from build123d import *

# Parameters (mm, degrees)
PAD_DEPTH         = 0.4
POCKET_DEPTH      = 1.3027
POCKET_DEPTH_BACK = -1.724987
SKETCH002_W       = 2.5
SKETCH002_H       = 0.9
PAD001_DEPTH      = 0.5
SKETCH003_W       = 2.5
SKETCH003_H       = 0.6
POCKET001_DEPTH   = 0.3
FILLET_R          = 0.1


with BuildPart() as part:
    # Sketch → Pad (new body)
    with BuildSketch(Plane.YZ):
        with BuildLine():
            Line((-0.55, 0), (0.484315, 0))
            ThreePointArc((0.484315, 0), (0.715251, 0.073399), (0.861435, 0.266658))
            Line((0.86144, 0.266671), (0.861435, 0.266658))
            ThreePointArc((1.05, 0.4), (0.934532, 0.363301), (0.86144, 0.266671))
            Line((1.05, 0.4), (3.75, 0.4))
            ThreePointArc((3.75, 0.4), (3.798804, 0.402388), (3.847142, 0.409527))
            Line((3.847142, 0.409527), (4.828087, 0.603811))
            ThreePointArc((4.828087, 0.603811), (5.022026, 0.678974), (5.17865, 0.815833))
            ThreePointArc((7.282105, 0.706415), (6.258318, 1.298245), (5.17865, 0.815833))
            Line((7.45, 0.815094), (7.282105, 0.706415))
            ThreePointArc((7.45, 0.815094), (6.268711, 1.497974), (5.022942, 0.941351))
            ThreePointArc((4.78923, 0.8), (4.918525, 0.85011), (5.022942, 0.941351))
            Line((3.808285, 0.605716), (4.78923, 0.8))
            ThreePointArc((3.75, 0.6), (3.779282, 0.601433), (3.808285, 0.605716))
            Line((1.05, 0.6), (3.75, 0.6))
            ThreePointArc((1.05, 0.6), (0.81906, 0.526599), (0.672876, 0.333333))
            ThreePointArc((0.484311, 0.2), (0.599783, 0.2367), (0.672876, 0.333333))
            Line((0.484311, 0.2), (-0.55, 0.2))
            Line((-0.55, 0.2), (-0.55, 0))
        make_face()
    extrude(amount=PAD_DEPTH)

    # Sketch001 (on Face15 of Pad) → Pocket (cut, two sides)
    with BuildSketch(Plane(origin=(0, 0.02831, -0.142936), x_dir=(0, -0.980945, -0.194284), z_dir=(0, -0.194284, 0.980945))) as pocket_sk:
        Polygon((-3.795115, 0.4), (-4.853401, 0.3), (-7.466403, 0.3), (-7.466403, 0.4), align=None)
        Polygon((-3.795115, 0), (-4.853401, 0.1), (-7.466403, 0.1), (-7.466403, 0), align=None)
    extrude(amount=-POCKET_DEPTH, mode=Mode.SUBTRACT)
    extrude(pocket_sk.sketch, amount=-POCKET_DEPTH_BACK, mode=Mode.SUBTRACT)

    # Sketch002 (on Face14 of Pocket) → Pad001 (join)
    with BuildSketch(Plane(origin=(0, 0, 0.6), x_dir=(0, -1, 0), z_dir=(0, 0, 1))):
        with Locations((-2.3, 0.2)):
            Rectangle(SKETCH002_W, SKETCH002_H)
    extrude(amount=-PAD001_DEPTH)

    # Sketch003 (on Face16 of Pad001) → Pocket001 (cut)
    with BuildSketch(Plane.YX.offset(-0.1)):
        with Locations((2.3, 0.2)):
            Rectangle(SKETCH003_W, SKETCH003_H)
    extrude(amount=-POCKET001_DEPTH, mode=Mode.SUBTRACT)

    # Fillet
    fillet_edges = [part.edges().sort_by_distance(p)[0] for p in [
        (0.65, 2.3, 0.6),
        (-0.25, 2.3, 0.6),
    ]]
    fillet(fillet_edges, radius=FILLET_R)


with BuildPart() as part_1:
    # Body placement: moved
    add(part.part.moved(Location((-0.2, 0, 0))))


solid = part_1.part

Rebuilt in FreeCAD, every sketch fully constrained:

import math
import FreeCAD as App
import Part
import Sketcher

V = App.Vector
Q = App.Units.Quantity


def edges_at(feature, points):
    """Names of the edges that pass closest to the given points."""
    edges = feature.Shape.Edges
    near = lambda p: min(range(len(edges)), key=lambda i: edges[i].distToShape(Part.Vertex(*p))[0])
    return sorted({f"Edge{near(p) + 1}" for p in points})


def add_polygon(sketch, points):
    """Adds a closed chain of lines whose ends are joined by coincident constraints."""
    first, n = sketch.GeometryCount, len(points)
    for a, b in zip(points, points[1:] + points[:1]):
        sketch.addGeometry(Part.LineSegment(App.Vector(*a, 0), App.Vector(*b, 0)), False)
    for i in range(n):
        sketch.addConstraint(Sketcher.Constraint("Coincident", first + i, 2, first + (i + 1) % n, 1))

doc = App.newDocument("Part")
params = doc.addObject("Spreadsheet::Sheet", "Params")
for row, (alias, value) in enumerate([
    ("sketch1_radius", "0.400001 mm"),
    ("sketch1_radius2", "0.199998 mm"),
    ("sketch1_radius3", "0.6 mm"),
    ("sketch1_radius4", "1.300001 mm"),
    ("sketch1_radius5", "1.500001 mm"),
    ("pad1_length", "0.4 mm"),
    ("sketch2_height", "0.1 mm"),
    ("sketch3_width", "0.9 mm"),
    ("sketch3_height", "2.5 mm"),
    ("pad2_length", "0.5 mm"),
    ("sketch4_width", "0.6 mm"),
    ("sketch4_height", "2.5 mm"),
    ("pocket2_length", "0.3 mm"),
    ("fillet_radius", "0.1 mm"),
], start=1):
    params.set(f"A{row}", alias)
    params.set(f"B{row}", "=" + value)
    params.setAlias(f"B{row}", alias)

body = doc.addObject("PartDesign::Body", "Body")

sketch1 = doc.addObject("Sketcher::SketchObject", "Sketch")
body.addObject(sketch1)
sketch1.AttachmentSupport = (doc.YZ_Plane, [""])
sketch1.MapMode = "FlatFace"
sketch1.addGeometry(Part.LineSegment(V(-0.55, 0, 0), V(0.484315, 0, 0)), False)
sketch1.addGeometry(Part.ArcOfCircle(Part.Circle(V(0.484314, 0.400001, 0), V(0, 0, 1), 0.400001), math.radians(-89.999867), math.radians(-19.472591)), False)
sketch1.addGeometry(Part.LineSegment(V(0.861435, 0.266658, 0), V(0.86144, 0.266671, 0)), False)
sketch1.addGeometry(Part.ArcOfCircle(Part.Circle(V(1.049999, 0.200002, 0), V(0, 0, 1), 0.199998), math.radians(89.999765), math.radians(160.527777)), False)
sketch1.addGeometry(Part.LineSegment(V(1.05, 0.4, 0), V(3.75, 0.4, 0)), False)
sketch1.addGeometry(Part.ArcOfCircle(Part.Circle(V(3.749989, 0.900132, 0), V(0, 0, 1), 0.500132), math.radians(-89.998711), math.radians(-78.798784)), False)
sketch1.addGeometry(Part.LineSegment(V(3.847142, 0.409527, 0), V(4.828087, 0.603811, 0)), False)
sketch1.addGeometry(Part.ArcOfCircle(Part.Circle(V(4.711517, 1.192378, 0), V(0, 0, 1), 0.6), math.radians(-78.797091), math.radians(-38.871453)), False)
sketch1.addGeometry(Part.ArcOfCircle(Part.Circle(V(6.190785, 0, 0), V(0, 0, 1), 1.300001), math.radians(32.91513), math.radians(141.129388)), False)
sketch1.addGeometry(Part.LineSegment(V(7.282105, 0.706415, 0), V(7.45, 0.815094, 0)), False)
sketch1.addGeometry(Part.ArcOfCircle(Part.Circle(V(6.190785, -0.000001, 0), V(0, 0, 1), 1.500001), math.radians(32.915153), math.radians(141.129094)), False)
sketch1.addGeometry(Part.ArcOfCircle(Part.Circle(V(4.711515, 1.192383, 0), V(0, 0, 1), 0.400005), math.radians(-78.796996), math.radians(-38.871195)), False)
sketch1.addGeometry(Part.LineSegment(V(4.78923, 0.8, 0), V(3.808285, 0.605716, 0)), False)
sketch1.addGeometry(Part.ArcOfCircle(Part.Circle(V(3.749988, 0.900145, 0), V(0, 0, 1), 0.300145), math.radians(-89.997628), math.radians(-78.800219)), False)
sketch1.addGeometry(Part.LineSegment(V(3.75, 0.6, 0), V(1.05, 0.6, 0)), False)
sketch1.addGeometry(Part.ArcOfCircle(Part.Circle(V(1.049999, 0.2, 0), V(0, 0, 1), 0.4), math.radians(89.999924), math.radians(160.528868)), False)
sketch1.addGeometry(Part.ArcOfCircle(Part.Circle(V(0.484314, 0.400001, 0), V(0, 0, 1), 0.200001), math.radians(-90.000742), math.radians(-19.471528)), False)
sketch1.addGeometry(Part.LineSegment(V(0.484311, 0.2, 0), V(-0.55, 0.2, 0)), False)
sketch1.addGeometry(Part.LineSegment(V(-0.55, 0.2, 0), V(-0.55, 0, 0)), False)
sketch1.addConstraint(Sketcher.Constraint("Coincident", 0, 2, 1, 1))
sketch1.addConstraint(Sketcher.Constraint("Coincident", 1, 2, 2, 1))
sketch1.addConstraint(Sketcher.Constraint("Coincident", 2, 2, 3, 2))
sketch1.addConstraint(Sketcher.Constraint("Coincident", 3, 1, 4, 1))
sketch1.addConstraint(Sketcher.Constraint("Coincident", 4, 2, 5, 1))
sketch1.addConstraint(Sketcher.Constraint("Coincident", 5, 2, 6, 1))
sketch1.addConstraint(Sketcher.Constraint("Coincident", 6, 2, 7, 1))
sketch1.addConstraint(Sketcher.Constraint("Coincident", 7, 2, 8, 2))
sketch1.addConstraint(Sketcher.Constraint("Coincident", 8, 1, 9, 1))
sketch1.addConstraint(Sketcher.Constraint("Coincident", 9, 2, 10, 1))
sketch1.addConstraint(Sketcher.Constraint("Coincident", 10, 2, 11, 2))
sketch1.addConstraint(Sketcher.Constraint("Coincident", 11, 1, 12, 1))
sketch1.addConstraint(Sketcher.Constraint("Coincident", 12, 2, 13, 2))
sketch1.addConstraint(Sketcher.Constraint("Coincident", 13, 1, 14, 1))
sketch1.addConstraint(Sketcher.Constraint("Coincident", 14, 2, 15, 1))
sketch1.addConstraint(Sketcher.Constraint("Coincident", 15, 2, 16, 2))
sketch1.addConstraint(Sketcher.Constraint("Coincident", 16, 1, 17, 1))
sketch1.addConstraint(Sketcher.Constraint("Coincident", 17, 2, 18, 1))
sketch1.addConstraint(Sketcher.Constraint("Coincident", 18, 2, 0, 1))
sketch1.addConstraint(Sketcher.Constraint("Horizontal", 0))
sketch1.addConstraint(Sketcher.Constraint("Horizontal", 4))
sketch1.addConstraint(Sketcher.Constraint("Horizontal", 14))
sketch1.addConstraint(Sketcher.Constraint("Horizontal", 17))
sketch1.addConstraint(Sketcher.Constraint("Vertical", 18))
sketch1.addConstraint(Sketcher.Constraint("Coincident", 10, 3, 8, 3))
sketch1.addConstraint(Sketcher.Constraint("Coincident", 11, 3, 7, 3))
sketch1.addConstraint(Sketcher.Constraint("Coincident", 15, 3, 3, 3))
sketch1.addConstraint(Sketcher.Constraint("Coincident", 16, 3, 1, 3))
sketch1.addConstraint(Sketcher.Constraint("PointOnObject", 8, 3, -1))
sketch1.addConstraint(Sketcher.Constraint("PointOnObject", 0, 2, -1))
sketch1.addConstraint(Sketcher.Constraint("Radius", 1, Q("0.400001 mm")))
sketch1.addConstraint(Sketcher.Constraint("Radius", 3, Q("0.199998 mm")))
sketch1.addConstraint(Sketcher.Constraint("Radius", 7, Q("0.6 mm")))
sketch1.addConstraint(Sketcher.Constraint("Radius", 8, Q("1.300001 mm")))
sketch1.addConstraint(Sketcher.Constraint("Radius", 10, Q("1.500001 mm")))
sketch1.addConstraint(Sketcher.Constraint("Radius", 15, Q("0.4 mm")))
sketch1.addConstraint(Sketcher.Constraint("Radius", 16, Q("0.200001 mm")))
sketch1.addConstraint(Sketcher.Constraint("Distance", 6, Q("1 mm")))
sketch1.addConstraint(Sketcher.Constraint("Distance", 12, Q("1 mm")))
sketch1.addConstraint(Sketcher.Constraint("DistanceX", 4, 1, 4, 2, Q("2.7 mm")))
sketch1.addConstraint(Sketcher.Constraint("DistanceX", 14, 2, 14, 1, Q("2.7 mm")))
sketch1.addConstraint(Sketcher.Constraint("DistanceY", -1, 1, 3, 3, Q("0.200002 mm")))
sketch1.addConstraint(Sketcher.Constraint("DistanceY", -1, 1, 11, 1, Q("0.8 mm")))
sketch1.addConstraint(Sketcher.Constraint("DistanceX", -1, 1, 3, 3, Q("1.049999 mm")))
sketch1.addConstraint(Sketcher.Constraint("DistanceX", -1, 1, 3, 1, Q("1.05 mm")))
sketch1.addConstraint(Sketcher.Constraint("DistanceX", -1, 1, 9, 2, Q("7.45 mm")))
sketch1.addConstraint(Sketcher.Constraint("DistanceX", -1, 1, 13, 1, Q("3.75 mm")))
sketch1.addConstraint(Sketcher.Constraint("DistanceX", 17, 2, -1, 1, Q("0.55 mm")))
sketch1.addConstraint(Sketcher.Constraint("Radius", 5, Q("0.500132 mm")))
sketch1.addConstraint(Sketcher.Constraint("Radius", 13, Q("0.300145 mm")))
sketch1.addConstraint(Sketcher.Constraint("DistanceX", 17, 2, 17, 1, Q("1.034311 mm")))
sketch1.addConstraint(Sketcher.Constraint("DistanceX", 5, 3, 6, 2, Q("1.078098 mm")))
sketch1.addConstraint(Sketcher.Constraint("DistanceX", 0, 1, 0, 2, Q("1.034315 mm")))
sketch1.addConstraint(Sketcher.Constraint("DistanceX", -1, 1, 5, 3, Q("3.749989 mm")))
sketch1.addConstraint(Sketcher.Constraint("DistanceY", -1, 1, 7, 3, Q("1.192378 mm")))
sketch1.addConstraint(Sketcher.Constraint("DistanceX", -1, 1, 2, 2, Q("0.86144 mm")))
sketch1.addConstraint(Sketcher.Constraint("DistanceX", -1, 1, 5, 2, Q("3.847142 mm")))
sketch1.addConstraint(Sketcher.Constraint("DistanceX", -1, 1, 7, 2, Q("5.17865 mm")))
sketch1.addConstraint(Sketcher.Constraint("DistanceY", -1, 1, 10, 2, Q("0.941351 mm")))
sketch1.addConstraint(Sketcher.Constraint("DistanceX", 13, 3, 7, 3, Q("0.961529 mm")))
sketch1.addConstraint(Sketcher.Constraint("DistanceX", 1, 3, 1, 2, Q("0.377121 mm")))
sketch1.addConstraint(Sketcher.Constraint("DistanceX", 8, 3, 8, 1, Q("1.09132 mm")))
sketch1.addConstraint(Sketcher.Constraint("DistanceX", 15, 2, 1, 2, Q("0.188559 mm")))
sketch1.setExpression("Constraints[30]", "Params.sketch1_radius")
sketch1.setExpression("Constraints[31]", "Params.sketch1_radius2")
sketch1.setExpression("Constraints[32]", "Params.sketch1_radius3")
sketch1.setExpression("Constraints[33]", "Params.sketch1_radius4")
sketch1.setExpression("Constraints[34]", "Params.sketch1_radius5")
pad1 = doc.addObject("PartDesign::Pad", "Pad")
body.addObject(pad1)
pad1.Profile = sketch1
pad1.setExpression("Length", "Params.pad1_length")

sketch2 = doc.addObject("Sketcher::SketchObject", "Sketch001")
body.addObject(sketch2)
sketch2.Placement = App.Placement(V(0, 0.02831, -0.142936), App.Rotation(V(0, -0.980945311, -0.194284062), V(1, 0, 0), V(0, -0.194284062, 0.980945311), "ZXY"))
add_polygon(sketch2, [(-4.85, 0.3), (-3.8, 0.4), (-7.47, 0.4), (-7.47, 0.3)])
add_polygon(sketch2, [(-3.8, 0), (-4.85, 0.1), (-7.47, 0.1), (-7.47, 0)])
sketch2.addConstraint(Sketcher.Constraint("Horizontal", 1))
sketch2.addConstraint(Sketcher.Constraint("Vertical", 2))
sketch2.addConstraint(Sketcher.Constraint("Horizontal", 3))
sketch2.addConstraint(Sketcher.Constraint("Horizontal", 5))
sketch2.addConstraint(Sketcher.Constraint("Vertical", 6))
sketch2.addConstraint(Sketcher.Constraint("Horizontal", 7))
sketch2.addConstraint(Sketcher.Constraint("PointOnObject", 6, 2, -1))
sketch2.addConstraint(Sketcher.Constraint("Vertical", 3, 2, 4, 2))
sketch2.addConstraint(Sketcher.Constraint("Vertical", 2, 2, 5, 2))
sketch2.addConstraint(Sketcher.Constraint("Vertical", 0, 2, 7, 2))
sketch2.addConstraint(Sketcher.Constraint("Equal", 2, 6))
sketch2.addConstraint(Sketcher.Constraint("DistanceY", 2, 2, 2, 1, Q("0.1 mm")))
sketch2.addConstraint(Sketcher.Constraint("DistanceY", -1, 1, 0, 2, Q("0.4 mm")))
sketch2.addConstraint(Sketcher.Constraint("DistanceX", 3, 1, 3, 2, Q("2.613002 mm")))
sketch2.addConstraint(Sketcher.Constraint("Distance", 0, Q("1.063 mm")))
sketch2.addConstraint(Sketcher.Constraint("DistanceX", 3, 2, -1, 1, Q("4.853401 mm")))
sketch2.setExpression("Constraints[19]", "Params.sketch2_height")
pocket1 = doc.addObject("PartDesign::Pocket", "Pocket")
body.addObject(pocket1)
pocket1.Profile = sketch2
pocket1.Type = "ThroughAll"
pocket1.Midplane = True

sketch3 = doc.addObject("Sketcher::SketchObject", "Sketch002")
body.addObject(sketch3)
sketch3.AttachmentSupport = (doc.XY_Plane, [""])
sketch3.MapMode = "FlatFace"
sketch3.AttachmentOffset = App.Placement(V(0, 0, 0.6), App.Rotation())
add_polygon(sketch3, [(0.7, 3.5), (-0.2, 3.5), (-0.2, 1.1), (0.7, 1.1)])
sketch3.addConstraint(Sketcher.Constraint("Horizontal", 0))
sketch3.addConstraint(Sketcher.Constraint("Vertical", 1))
sketch3.addConstraint(Sketcher.Constraint("Horizontal", 2))
sketch3.addConstraint(Sketcher.Constraint("Vertical", 3))
sketch3.addConstraint(Sketcher.Constraint("DistanceX", 0, 2, 0, 1, Q("0.9 mm")))
sketch3.addConstraint(Sketcher.Constraint("DistanceY", 1, 2, 1, 1, Q("2.5 mm")))
sketch3.addConstraint(Sketcher.Constraint("DistanceX", 0, 2, -1, 1, Q("0.25 mm")))
sketch3.addConstraint(Sketcher.Constraint("DistanceY", -1, 1, 0, 2, Q("3.55 mm")))
sketch3.setExpression("Constraints[8]", "Params.sketch3_width")
sketch3.setExpression("Constraints[9]", "Params.sketch3_height")
pad2 = doc.addObject("PartDesign::Pad", "Pad001")
body.addObject(pad2)
pad2.Profile = sketch3
pad2.setExpression("Length", "Params.pad2_length")
pad2.Reversed = True

sketch4 = doc.addObject("Sketcher::SketchObject", "Sketch003")
body.addObject(sketch4)
sketch4.AttachmentSupport = (doc.XY_Plane, [""])
sketch4.MapMode = "FlatFace"
sketch4.AttachmentOffset = App.Placement(V(0, 0, 0.1), App.Rotation())
add_polygon(sketch4, [(0.5, 1.1), (-0.1, 1.1), (-0.1, 3.5), (0.5, 3.5)])
sketch4.addConstraint(Sketcher.Constraint("Horizontal", 0))
sketch4.addConstraint(Sketcher.Constraint("Vertical", 1))
sketch4.addConstraint(Sketcher.Constraint("Horizontal", 2))
sketch4.addConstraint(Sketcher.Constraint("Vertical", 3))
sketch4.addConstraint(Sketcher.Constraint("DistanceX", 0, 2, 0, 1, Q("0.6 mm")))
sketch4.addConstraint(Sketcher.Constraint("DistanceY", 1, 1, 1, 2, Q("2.5 mm")))
sketch4.addConstraint(Sketcher.Constraint("DistanceX", 0, 2, -1, 1, Q("0.1 mm")))
sketch4.addConstraint(Sketcher.Constraint("DistanceY", -1, 1, 0, 2, Q("1.05 mm")))
sketch4.setExpression("Constraints[8]", "Params.sketch4_width")
sketch4.setExpression("Constraints[9]", "Params.sketch4_height")
pocket2 = doc.addObject("PartDesign::Pocket", "Pocket001")
body.addObject(pocket2)
pocket2.Profile = sketch4
pocket2.setExpression("Length", "Params.pocket2_length")
pocket2.Reversed = True
doc.recompute()

fillet = doc.addObject("PartDesign::Fillet", "Fillet")
body.addObject(fillet)
fillet.Base = (pocket2, edges_at(pocket2, [(0.65, 2.3, 0.6), (-0.25, 2.3, 0.6)]))
fillet.setExpression("Radius", "Params.fillet_radius")
body2 = doc.addObject("PartDesign::Body", "Body001")
doc.recompute()

body.Placement = App.Placement(V(-0.2, 0, 0), App.Rotation(V(0, 0, 1), 0))
boolean = doc.addObject("PartDesign::Boolean", "Boolean")
body2.addObject(boolean)
boolean.Type = "Fuse"
boolean.addObjects([body])

doc.recompute()
